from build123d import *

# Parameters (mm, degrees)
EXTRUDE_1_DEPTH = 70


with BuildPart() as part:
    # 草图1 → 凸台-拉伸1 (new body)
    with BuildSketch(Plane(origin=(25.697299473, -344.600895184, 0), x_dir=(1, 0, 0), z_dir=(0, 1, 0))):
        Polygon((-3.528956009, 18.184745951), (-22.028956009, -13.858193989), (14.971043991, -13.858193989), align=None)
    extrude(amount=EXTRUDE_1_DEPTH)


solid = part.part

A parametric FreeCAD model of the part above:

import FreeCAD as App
import Part
import Sketcher
from FreeCAD import Vector
Q = App.Units.Quantity

doc = App.newDocument("Part")
body = doc.addObject("PartDesign::Body", "Body")

sketch1 = doc.addObject("Sketcher::SketchObject", "Sketch")
body.addObject(sketch1)
sketch1.AttachmentSupport = (doc.XZ_Plane, [""])
sketch1.MapMode = "FlatFace"
sketch1.AttachmentOffset = App.Placement(Vector(0, 0, 344.600895), App.Rotation())
sketch1.addGeometry(Part.LineSegment(Vector(22.168343, -18.184746, 0), Vector(3.668343, 13.858194, 0)), False)
sketch1.addGeometry(Part.LineSegment(Vector(3.668343, 13.858194, 0), Vector(40.668343, 13.858194, 0)), False)
sketch1.addGeometry(Part.LineSegment(Vector(40.668343, 13.858194, 0), Vector(22.168343, -18.184746, 0)), False)
sketch1.addConstraint(Sketcher.Constraint("Coincident", 0, 2, 1, 1))
sketch1.addConstraint(Sketcher.Constraint("Coincident", 1, 2, 2, 1))
sketch1.addConstraint(Sketcher.Constraint("Coincident", 2, 2, 0, 1))
sketch1.addConstraint(Sketcher.Constraint("Horizontal", 1))
sketch1.addConstraint(Sketcher.Constraint("Equal", 0, 2))
sketch1.addConstraint(Sketcher.Constraint("DistanceX", 1, 1, 1, 2, 37.0))
sketch1.addConstraint(Sketcher.Constraint("Angle", 0, Q("120 deg")))
sketch1.addConstraint(Sketcher.Constraint("DistanceX", -1, 1, 0, 2, 3.668343))
sketch1.addConstraint(Sketcher.Constraint("DistanceY", -1, 1, 0, 2, 13.858194))
pad1 = doc.addObject("PartDesign::Pad", "Pad")
body.addObject(pad1)
pad1.Profile = sketch1
pad1.Length = 70
pad1.Reversed = True

doc.recompute()
